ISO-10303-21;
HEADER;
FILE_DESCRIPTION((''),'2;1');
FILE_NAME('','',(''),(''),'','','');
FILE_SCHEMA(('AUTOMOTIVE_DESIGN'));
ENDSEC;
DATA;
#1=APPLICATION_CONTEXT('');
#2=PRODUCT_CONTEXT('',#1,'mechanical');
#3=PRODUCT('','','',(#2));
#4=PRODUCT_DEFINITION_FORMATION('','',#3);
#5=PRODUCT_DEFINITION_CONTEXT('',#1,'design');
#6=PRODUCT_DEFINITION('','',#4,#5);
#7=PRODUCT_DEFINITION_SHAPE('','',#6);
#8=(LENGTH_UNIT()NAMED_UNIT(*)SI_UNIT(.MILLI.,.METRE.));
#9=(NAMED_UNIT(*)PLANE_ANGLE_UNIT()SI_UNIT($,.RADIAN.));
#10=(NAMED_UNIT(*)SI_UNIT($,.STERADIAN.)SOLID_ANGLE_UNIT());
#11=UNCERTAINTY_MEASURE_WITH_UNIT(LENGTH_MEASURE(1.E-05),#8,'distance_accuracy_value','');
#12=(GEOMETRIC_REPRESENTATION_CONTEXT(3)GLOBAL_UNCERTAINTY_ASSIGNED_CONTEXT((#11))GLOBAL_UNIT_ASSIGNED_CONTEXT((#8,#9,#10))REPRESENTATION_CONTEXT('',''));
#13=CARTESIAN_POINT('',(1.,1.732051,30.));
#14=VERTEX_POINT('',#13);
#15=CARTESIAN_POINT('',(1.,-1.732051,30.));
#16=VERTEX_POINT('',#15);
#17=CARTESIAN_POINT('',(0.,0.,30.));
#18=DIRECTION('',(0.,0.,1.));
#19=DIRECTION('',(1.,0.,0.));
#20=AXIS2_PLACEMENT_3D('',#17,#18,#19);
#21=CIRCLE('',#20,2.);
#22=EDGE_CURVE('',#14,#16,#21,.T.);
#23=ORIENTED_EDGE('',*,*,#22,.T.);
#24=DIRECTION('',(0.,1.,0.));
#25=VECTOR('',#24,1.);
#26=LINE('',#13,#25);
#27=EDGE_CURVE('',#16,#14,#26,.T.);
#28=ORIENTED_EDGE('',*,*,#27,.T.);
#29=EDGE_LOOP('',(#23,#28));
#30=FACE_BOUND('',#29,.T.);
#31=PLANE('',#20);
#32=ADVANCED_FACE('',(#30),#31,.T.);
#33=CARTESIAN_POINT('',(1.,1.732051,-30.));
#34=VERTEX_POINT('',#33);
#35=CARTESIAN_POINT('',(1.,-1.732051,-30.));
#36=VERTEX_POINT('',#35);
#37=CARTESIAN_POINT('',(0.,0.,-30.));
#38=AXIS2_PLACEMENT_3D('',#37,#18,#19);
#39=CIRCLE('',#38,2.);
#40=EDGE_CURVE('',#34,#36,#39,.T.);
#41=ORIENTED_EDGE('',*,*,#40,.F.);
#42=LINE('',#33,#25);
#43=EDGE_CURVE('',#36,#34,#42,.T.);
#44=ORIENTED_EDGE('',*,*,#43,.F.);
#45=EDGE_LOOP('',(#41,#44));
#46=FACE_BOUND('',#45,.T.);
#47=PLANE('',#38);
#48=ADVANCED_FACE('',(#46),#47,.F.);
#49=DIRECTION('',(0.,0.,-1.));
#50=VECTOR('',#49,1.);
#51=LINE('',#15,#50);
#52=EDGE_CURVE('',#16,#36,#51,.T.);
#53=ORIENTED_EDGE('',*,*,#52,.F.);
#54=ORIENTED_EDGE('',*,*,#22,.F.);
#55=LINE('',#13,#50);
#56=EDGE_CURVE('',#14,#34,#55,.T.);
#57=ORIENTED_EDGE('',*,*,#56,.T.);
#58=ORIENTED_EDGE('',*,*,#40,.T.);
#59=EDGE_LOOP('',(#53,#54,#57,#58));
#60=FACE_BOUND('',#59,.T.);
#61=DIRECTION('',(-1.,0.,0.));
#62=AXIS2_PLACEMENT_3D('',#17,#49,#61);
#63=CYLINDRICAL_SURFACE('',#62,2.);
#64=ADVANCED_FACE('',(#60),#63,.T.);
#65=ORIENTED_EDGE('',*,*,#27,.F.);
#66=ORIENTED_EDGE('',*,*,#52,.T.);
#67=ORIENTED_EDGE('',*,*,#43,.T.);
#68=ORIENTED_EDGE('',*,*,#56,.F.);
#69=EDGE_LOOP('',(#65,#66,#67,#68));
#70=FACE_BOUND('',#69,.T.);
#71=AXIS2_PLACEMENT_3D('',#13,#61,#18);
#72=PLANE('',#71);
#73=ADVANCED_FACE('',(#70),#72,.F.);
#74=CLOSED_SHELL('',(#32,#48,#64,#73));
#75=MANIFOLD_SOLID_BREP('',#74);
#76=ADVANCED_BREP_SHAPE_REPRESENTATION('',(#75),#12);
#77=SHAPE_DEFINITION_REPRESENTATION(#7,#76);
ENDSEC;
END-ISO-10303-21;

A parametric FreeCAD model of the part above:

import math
import FreeCAD as App
import Part
import Sketcher
from FreeCAD import Vector
Q = App.Units.Quantity

doc = App.newDocument("Part")
body = doc.addObject("PartDesign::Body", "Body")

# Sketch on XY plane
sketch1 = body.newObject("Sketcher::SketchObject", "Sketch")
sketch1.AttachmentSupport = (doc.getObject("XY_Plane"), [""])
sketch1.MapMode = "FlatFace"
sketch1.addGeometry(Part.LineSegment(Vector(1, -1.7, 0), Vector(1, 1.7, 0)), False)
sketch1.addGeometry(Part.ArcOfCircle(Part.Circle(Vector(0, 0, 0), Vector(0, 0, 1), 2), math.radians(60), math.radians(300)), False)
sketch1.addConstraint(Sketcher.Constraint("Coincident", 0, 1, 1, 2))
sketch1.addConstraint(Sketcher.Constraint("Coincident", 1, 1, 0, 2))
sketch1.addConstraint(Sketcher.Constraint("Vertical", 0))
sketch1.addConstraint(Sketcher.Constraint("Coincident", 1, 3, -1, 1))
sketch1.addConstraint(Sketcher.Constraint("Radius", 1, Q("2 mm")))
sketch1.addConstraint(Sketcher.Constraint("DistanceX", -1, 1, 0, 1, Q("1 mm")))
pad1 = body.newObject("PartDesign::Pad", "Pad")
pad1.Profile = sketch1
pad1.Length = 60
pad1.Midplane = True

doc.recompute()
